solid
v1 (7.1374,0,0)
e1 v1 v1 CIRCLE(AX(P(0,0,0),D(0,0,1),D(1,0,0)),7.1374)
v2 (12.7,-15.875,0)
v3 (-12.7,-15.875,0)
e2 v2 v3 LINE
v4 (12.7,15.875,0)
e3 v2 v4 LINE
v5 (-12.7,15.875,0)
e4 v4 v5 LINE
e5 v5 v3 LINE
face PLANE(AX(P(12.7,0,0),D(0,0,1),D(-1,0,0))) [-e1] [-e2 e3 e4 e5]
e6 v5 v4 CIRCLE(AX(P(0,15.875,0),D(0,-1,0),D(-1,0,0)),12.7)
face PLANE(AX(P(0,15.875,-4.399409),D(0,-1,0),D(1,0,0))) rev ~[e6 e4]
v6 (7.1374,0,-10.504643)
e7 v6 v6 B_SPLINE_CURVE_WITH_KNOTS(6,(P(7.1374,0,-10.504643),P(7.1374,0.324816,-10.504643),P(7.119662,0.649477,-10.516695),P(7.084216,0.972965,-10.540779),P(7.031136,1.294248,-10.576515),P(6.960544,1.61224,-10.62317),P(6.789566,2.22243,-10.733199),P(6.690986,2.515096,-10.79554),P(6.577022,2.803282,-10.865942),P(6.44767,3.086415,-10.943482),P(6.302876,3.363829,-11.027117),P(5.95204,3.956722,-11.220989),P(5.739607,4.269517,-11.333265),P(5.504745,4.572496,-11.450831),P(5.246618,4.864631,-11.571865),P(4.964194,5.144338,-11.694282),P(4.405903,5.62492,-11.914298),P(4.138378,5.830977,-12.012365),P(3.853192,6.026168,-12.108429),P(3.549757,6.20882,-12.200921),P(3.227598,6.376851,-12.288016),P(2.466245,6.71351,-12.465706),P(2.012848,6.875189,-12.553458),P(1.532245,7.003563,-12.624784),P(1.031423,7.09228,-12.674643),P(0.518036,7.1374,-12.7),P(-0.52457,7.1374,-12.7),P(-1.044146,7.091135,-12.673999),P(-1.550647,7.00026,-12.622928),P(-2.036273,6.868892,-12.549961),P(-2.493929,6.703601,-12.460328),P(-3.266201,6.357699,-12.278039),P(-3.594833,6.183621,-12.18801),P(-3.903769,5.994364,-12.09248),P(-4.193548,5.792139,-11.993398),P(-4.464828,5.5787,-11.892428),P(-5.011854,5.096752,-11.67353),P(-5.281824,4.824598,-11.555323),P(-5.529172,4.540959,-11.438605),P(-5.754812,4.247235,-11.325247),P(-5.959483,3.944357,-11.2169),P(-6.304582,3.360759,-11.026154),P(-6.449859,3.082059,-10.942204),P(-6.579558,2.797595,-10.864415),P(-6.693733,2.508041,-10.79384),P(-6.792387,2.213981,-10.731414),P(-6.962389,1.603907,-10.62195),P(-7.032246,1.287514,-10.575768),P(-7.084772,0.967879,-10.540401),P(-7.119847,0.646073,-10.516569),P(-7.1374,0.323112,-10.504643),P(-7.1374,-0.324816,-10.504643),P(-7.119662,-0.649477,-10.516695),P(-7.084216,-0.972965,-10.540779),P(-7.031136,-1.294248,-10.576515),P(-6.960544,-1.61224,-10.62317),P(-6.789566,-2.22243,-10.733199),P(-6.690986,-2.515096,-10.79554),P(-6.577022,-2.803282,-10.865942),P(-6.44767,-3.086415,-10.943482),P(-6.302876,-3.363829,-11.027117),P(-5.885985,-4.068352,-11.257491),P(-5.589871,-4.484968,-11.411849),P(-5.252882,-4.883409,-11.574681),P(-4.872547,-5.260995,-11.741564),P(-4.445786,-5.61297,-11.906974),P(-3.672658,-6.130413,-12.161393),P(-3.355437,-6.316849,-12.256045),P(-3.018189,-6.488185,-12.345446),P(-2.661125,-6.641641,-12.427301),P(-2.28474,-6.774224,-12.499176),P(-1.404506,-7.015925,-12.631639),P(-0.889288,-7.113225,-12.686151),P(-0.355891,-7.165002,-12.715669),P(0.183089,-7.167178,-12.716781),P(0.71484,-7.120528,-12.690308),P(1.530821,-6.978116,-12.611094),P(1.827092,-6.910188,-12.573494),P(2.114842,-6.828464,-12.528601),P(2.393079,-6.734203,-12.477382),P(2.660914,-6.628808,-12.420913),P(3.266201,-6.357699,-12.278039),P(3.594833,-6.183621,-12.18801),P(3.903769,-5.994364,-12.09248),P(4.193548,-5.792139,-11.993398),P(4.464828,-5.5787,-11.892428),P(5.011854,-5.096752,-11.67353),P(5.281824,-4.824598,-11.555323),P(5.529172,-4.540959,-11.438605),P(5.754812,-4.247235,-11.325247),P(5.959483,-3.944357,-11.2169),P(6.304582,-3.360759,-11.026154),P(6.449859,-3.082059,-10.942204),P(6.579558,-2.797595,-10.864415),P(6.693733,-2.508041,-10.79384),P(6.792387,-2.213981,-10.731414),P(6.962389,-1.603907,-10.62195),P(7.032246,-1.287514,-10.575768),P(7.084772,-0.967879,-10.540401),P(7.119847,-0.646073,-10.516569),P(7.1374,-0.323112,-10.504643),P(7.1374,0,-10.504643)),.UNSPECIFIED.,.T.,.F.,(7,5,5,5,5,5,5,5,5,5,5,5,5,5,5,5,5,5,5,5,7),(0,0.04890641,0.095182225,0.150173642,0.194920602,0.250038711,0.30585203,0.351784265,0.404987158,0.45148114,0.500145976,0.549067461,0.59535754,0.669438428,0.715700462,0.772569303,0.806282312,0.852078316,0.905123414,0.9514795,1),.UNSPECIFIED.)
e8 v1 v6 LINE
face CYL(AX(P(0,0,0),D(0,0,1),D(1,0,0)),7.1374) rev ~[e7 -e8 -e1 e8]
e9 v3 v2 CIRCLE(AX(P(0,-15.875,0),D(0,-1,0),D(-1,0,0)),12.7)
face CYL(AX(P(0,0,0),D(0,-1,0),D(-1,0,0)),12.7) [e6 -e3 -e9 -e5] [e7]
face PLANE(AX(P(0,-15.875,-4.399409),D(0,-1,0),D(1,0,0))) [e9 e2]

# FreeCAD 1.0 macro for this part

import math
import FreeCAD as App
import Part
import Sketcher
from FreeCAD import Vector
Q = App.Units.Quantity

doc = App.newDocument("Part")
body = doc.addObject("PartDesign::Body", "Body")

sketch1 = body.newObject("Sketcher::SketchObject", "Sketch")
sketch1.AttachmentSupport = (doc.getObject("XZ_Plane"), [""])
sketch1.MapMode = "FlatFace"
sketch1.addGeometry(Part.LineSegment(Vector(13, 0, 0), Vector(-13, 0, 0)), False)
sketch1.addGeometry(Part.ArcOfCircle(Part.Circle(Vector(0, 0, 0), Vector(0, 0, 1), 13), math.radians(180), math.radians(360)), False)
sketch1.addConstraint(Sketcher.Constraint("Coincident", 0, 1, 1, 2))
sketch1.addConstraint(Sketcher.Constraint("Coincident", 1, 1, 0, 2))
sketch1.addConstraint(Sketcher.Constraint("Horizontal", 0))
sketch1.addConstraint(Sketcher.Constraint("Coincident", 1, 3, -1, 1))
sketch1.addConstraint(Sketcher.Constraint("PointOnObject", 0, 1, -1))
sketch1.addConstraint(Sketcher.Constraint("Radius", 1, Q("0.5 in")))
pad1 = body.newObject("PartDesign::Pad", "Pad")
pad1.Profile = sketch1
pad1.Length = Q("1.25 in")
pad1.Midplane = True

sketch2 = body.newObject("Sketcher::SketchObject", "Sketch001")
sketch2.AttachmentSupport = (doc.getObject("XY_Plane"), [""])
sketch2.MapMode = "FlatFace"
sketch2.addGeometry(Part.Circle(Vector(0, 0, 0), Vector(0, 0, 1), 7), False)
sketch2.addConstraint(Sketcher.Constraint("Coincident", 0, 3, -1, 1))
sketch2.addConstraint(Sketcher.Constraint("Diameter", 0, Q("0.562 in")))
pocket1 = body.newObject("PartDesign::Pocket", "Pocket")
pocket1.Profile = sketch2
pocket1.Length = Q("1 in")

doc.recompute()
